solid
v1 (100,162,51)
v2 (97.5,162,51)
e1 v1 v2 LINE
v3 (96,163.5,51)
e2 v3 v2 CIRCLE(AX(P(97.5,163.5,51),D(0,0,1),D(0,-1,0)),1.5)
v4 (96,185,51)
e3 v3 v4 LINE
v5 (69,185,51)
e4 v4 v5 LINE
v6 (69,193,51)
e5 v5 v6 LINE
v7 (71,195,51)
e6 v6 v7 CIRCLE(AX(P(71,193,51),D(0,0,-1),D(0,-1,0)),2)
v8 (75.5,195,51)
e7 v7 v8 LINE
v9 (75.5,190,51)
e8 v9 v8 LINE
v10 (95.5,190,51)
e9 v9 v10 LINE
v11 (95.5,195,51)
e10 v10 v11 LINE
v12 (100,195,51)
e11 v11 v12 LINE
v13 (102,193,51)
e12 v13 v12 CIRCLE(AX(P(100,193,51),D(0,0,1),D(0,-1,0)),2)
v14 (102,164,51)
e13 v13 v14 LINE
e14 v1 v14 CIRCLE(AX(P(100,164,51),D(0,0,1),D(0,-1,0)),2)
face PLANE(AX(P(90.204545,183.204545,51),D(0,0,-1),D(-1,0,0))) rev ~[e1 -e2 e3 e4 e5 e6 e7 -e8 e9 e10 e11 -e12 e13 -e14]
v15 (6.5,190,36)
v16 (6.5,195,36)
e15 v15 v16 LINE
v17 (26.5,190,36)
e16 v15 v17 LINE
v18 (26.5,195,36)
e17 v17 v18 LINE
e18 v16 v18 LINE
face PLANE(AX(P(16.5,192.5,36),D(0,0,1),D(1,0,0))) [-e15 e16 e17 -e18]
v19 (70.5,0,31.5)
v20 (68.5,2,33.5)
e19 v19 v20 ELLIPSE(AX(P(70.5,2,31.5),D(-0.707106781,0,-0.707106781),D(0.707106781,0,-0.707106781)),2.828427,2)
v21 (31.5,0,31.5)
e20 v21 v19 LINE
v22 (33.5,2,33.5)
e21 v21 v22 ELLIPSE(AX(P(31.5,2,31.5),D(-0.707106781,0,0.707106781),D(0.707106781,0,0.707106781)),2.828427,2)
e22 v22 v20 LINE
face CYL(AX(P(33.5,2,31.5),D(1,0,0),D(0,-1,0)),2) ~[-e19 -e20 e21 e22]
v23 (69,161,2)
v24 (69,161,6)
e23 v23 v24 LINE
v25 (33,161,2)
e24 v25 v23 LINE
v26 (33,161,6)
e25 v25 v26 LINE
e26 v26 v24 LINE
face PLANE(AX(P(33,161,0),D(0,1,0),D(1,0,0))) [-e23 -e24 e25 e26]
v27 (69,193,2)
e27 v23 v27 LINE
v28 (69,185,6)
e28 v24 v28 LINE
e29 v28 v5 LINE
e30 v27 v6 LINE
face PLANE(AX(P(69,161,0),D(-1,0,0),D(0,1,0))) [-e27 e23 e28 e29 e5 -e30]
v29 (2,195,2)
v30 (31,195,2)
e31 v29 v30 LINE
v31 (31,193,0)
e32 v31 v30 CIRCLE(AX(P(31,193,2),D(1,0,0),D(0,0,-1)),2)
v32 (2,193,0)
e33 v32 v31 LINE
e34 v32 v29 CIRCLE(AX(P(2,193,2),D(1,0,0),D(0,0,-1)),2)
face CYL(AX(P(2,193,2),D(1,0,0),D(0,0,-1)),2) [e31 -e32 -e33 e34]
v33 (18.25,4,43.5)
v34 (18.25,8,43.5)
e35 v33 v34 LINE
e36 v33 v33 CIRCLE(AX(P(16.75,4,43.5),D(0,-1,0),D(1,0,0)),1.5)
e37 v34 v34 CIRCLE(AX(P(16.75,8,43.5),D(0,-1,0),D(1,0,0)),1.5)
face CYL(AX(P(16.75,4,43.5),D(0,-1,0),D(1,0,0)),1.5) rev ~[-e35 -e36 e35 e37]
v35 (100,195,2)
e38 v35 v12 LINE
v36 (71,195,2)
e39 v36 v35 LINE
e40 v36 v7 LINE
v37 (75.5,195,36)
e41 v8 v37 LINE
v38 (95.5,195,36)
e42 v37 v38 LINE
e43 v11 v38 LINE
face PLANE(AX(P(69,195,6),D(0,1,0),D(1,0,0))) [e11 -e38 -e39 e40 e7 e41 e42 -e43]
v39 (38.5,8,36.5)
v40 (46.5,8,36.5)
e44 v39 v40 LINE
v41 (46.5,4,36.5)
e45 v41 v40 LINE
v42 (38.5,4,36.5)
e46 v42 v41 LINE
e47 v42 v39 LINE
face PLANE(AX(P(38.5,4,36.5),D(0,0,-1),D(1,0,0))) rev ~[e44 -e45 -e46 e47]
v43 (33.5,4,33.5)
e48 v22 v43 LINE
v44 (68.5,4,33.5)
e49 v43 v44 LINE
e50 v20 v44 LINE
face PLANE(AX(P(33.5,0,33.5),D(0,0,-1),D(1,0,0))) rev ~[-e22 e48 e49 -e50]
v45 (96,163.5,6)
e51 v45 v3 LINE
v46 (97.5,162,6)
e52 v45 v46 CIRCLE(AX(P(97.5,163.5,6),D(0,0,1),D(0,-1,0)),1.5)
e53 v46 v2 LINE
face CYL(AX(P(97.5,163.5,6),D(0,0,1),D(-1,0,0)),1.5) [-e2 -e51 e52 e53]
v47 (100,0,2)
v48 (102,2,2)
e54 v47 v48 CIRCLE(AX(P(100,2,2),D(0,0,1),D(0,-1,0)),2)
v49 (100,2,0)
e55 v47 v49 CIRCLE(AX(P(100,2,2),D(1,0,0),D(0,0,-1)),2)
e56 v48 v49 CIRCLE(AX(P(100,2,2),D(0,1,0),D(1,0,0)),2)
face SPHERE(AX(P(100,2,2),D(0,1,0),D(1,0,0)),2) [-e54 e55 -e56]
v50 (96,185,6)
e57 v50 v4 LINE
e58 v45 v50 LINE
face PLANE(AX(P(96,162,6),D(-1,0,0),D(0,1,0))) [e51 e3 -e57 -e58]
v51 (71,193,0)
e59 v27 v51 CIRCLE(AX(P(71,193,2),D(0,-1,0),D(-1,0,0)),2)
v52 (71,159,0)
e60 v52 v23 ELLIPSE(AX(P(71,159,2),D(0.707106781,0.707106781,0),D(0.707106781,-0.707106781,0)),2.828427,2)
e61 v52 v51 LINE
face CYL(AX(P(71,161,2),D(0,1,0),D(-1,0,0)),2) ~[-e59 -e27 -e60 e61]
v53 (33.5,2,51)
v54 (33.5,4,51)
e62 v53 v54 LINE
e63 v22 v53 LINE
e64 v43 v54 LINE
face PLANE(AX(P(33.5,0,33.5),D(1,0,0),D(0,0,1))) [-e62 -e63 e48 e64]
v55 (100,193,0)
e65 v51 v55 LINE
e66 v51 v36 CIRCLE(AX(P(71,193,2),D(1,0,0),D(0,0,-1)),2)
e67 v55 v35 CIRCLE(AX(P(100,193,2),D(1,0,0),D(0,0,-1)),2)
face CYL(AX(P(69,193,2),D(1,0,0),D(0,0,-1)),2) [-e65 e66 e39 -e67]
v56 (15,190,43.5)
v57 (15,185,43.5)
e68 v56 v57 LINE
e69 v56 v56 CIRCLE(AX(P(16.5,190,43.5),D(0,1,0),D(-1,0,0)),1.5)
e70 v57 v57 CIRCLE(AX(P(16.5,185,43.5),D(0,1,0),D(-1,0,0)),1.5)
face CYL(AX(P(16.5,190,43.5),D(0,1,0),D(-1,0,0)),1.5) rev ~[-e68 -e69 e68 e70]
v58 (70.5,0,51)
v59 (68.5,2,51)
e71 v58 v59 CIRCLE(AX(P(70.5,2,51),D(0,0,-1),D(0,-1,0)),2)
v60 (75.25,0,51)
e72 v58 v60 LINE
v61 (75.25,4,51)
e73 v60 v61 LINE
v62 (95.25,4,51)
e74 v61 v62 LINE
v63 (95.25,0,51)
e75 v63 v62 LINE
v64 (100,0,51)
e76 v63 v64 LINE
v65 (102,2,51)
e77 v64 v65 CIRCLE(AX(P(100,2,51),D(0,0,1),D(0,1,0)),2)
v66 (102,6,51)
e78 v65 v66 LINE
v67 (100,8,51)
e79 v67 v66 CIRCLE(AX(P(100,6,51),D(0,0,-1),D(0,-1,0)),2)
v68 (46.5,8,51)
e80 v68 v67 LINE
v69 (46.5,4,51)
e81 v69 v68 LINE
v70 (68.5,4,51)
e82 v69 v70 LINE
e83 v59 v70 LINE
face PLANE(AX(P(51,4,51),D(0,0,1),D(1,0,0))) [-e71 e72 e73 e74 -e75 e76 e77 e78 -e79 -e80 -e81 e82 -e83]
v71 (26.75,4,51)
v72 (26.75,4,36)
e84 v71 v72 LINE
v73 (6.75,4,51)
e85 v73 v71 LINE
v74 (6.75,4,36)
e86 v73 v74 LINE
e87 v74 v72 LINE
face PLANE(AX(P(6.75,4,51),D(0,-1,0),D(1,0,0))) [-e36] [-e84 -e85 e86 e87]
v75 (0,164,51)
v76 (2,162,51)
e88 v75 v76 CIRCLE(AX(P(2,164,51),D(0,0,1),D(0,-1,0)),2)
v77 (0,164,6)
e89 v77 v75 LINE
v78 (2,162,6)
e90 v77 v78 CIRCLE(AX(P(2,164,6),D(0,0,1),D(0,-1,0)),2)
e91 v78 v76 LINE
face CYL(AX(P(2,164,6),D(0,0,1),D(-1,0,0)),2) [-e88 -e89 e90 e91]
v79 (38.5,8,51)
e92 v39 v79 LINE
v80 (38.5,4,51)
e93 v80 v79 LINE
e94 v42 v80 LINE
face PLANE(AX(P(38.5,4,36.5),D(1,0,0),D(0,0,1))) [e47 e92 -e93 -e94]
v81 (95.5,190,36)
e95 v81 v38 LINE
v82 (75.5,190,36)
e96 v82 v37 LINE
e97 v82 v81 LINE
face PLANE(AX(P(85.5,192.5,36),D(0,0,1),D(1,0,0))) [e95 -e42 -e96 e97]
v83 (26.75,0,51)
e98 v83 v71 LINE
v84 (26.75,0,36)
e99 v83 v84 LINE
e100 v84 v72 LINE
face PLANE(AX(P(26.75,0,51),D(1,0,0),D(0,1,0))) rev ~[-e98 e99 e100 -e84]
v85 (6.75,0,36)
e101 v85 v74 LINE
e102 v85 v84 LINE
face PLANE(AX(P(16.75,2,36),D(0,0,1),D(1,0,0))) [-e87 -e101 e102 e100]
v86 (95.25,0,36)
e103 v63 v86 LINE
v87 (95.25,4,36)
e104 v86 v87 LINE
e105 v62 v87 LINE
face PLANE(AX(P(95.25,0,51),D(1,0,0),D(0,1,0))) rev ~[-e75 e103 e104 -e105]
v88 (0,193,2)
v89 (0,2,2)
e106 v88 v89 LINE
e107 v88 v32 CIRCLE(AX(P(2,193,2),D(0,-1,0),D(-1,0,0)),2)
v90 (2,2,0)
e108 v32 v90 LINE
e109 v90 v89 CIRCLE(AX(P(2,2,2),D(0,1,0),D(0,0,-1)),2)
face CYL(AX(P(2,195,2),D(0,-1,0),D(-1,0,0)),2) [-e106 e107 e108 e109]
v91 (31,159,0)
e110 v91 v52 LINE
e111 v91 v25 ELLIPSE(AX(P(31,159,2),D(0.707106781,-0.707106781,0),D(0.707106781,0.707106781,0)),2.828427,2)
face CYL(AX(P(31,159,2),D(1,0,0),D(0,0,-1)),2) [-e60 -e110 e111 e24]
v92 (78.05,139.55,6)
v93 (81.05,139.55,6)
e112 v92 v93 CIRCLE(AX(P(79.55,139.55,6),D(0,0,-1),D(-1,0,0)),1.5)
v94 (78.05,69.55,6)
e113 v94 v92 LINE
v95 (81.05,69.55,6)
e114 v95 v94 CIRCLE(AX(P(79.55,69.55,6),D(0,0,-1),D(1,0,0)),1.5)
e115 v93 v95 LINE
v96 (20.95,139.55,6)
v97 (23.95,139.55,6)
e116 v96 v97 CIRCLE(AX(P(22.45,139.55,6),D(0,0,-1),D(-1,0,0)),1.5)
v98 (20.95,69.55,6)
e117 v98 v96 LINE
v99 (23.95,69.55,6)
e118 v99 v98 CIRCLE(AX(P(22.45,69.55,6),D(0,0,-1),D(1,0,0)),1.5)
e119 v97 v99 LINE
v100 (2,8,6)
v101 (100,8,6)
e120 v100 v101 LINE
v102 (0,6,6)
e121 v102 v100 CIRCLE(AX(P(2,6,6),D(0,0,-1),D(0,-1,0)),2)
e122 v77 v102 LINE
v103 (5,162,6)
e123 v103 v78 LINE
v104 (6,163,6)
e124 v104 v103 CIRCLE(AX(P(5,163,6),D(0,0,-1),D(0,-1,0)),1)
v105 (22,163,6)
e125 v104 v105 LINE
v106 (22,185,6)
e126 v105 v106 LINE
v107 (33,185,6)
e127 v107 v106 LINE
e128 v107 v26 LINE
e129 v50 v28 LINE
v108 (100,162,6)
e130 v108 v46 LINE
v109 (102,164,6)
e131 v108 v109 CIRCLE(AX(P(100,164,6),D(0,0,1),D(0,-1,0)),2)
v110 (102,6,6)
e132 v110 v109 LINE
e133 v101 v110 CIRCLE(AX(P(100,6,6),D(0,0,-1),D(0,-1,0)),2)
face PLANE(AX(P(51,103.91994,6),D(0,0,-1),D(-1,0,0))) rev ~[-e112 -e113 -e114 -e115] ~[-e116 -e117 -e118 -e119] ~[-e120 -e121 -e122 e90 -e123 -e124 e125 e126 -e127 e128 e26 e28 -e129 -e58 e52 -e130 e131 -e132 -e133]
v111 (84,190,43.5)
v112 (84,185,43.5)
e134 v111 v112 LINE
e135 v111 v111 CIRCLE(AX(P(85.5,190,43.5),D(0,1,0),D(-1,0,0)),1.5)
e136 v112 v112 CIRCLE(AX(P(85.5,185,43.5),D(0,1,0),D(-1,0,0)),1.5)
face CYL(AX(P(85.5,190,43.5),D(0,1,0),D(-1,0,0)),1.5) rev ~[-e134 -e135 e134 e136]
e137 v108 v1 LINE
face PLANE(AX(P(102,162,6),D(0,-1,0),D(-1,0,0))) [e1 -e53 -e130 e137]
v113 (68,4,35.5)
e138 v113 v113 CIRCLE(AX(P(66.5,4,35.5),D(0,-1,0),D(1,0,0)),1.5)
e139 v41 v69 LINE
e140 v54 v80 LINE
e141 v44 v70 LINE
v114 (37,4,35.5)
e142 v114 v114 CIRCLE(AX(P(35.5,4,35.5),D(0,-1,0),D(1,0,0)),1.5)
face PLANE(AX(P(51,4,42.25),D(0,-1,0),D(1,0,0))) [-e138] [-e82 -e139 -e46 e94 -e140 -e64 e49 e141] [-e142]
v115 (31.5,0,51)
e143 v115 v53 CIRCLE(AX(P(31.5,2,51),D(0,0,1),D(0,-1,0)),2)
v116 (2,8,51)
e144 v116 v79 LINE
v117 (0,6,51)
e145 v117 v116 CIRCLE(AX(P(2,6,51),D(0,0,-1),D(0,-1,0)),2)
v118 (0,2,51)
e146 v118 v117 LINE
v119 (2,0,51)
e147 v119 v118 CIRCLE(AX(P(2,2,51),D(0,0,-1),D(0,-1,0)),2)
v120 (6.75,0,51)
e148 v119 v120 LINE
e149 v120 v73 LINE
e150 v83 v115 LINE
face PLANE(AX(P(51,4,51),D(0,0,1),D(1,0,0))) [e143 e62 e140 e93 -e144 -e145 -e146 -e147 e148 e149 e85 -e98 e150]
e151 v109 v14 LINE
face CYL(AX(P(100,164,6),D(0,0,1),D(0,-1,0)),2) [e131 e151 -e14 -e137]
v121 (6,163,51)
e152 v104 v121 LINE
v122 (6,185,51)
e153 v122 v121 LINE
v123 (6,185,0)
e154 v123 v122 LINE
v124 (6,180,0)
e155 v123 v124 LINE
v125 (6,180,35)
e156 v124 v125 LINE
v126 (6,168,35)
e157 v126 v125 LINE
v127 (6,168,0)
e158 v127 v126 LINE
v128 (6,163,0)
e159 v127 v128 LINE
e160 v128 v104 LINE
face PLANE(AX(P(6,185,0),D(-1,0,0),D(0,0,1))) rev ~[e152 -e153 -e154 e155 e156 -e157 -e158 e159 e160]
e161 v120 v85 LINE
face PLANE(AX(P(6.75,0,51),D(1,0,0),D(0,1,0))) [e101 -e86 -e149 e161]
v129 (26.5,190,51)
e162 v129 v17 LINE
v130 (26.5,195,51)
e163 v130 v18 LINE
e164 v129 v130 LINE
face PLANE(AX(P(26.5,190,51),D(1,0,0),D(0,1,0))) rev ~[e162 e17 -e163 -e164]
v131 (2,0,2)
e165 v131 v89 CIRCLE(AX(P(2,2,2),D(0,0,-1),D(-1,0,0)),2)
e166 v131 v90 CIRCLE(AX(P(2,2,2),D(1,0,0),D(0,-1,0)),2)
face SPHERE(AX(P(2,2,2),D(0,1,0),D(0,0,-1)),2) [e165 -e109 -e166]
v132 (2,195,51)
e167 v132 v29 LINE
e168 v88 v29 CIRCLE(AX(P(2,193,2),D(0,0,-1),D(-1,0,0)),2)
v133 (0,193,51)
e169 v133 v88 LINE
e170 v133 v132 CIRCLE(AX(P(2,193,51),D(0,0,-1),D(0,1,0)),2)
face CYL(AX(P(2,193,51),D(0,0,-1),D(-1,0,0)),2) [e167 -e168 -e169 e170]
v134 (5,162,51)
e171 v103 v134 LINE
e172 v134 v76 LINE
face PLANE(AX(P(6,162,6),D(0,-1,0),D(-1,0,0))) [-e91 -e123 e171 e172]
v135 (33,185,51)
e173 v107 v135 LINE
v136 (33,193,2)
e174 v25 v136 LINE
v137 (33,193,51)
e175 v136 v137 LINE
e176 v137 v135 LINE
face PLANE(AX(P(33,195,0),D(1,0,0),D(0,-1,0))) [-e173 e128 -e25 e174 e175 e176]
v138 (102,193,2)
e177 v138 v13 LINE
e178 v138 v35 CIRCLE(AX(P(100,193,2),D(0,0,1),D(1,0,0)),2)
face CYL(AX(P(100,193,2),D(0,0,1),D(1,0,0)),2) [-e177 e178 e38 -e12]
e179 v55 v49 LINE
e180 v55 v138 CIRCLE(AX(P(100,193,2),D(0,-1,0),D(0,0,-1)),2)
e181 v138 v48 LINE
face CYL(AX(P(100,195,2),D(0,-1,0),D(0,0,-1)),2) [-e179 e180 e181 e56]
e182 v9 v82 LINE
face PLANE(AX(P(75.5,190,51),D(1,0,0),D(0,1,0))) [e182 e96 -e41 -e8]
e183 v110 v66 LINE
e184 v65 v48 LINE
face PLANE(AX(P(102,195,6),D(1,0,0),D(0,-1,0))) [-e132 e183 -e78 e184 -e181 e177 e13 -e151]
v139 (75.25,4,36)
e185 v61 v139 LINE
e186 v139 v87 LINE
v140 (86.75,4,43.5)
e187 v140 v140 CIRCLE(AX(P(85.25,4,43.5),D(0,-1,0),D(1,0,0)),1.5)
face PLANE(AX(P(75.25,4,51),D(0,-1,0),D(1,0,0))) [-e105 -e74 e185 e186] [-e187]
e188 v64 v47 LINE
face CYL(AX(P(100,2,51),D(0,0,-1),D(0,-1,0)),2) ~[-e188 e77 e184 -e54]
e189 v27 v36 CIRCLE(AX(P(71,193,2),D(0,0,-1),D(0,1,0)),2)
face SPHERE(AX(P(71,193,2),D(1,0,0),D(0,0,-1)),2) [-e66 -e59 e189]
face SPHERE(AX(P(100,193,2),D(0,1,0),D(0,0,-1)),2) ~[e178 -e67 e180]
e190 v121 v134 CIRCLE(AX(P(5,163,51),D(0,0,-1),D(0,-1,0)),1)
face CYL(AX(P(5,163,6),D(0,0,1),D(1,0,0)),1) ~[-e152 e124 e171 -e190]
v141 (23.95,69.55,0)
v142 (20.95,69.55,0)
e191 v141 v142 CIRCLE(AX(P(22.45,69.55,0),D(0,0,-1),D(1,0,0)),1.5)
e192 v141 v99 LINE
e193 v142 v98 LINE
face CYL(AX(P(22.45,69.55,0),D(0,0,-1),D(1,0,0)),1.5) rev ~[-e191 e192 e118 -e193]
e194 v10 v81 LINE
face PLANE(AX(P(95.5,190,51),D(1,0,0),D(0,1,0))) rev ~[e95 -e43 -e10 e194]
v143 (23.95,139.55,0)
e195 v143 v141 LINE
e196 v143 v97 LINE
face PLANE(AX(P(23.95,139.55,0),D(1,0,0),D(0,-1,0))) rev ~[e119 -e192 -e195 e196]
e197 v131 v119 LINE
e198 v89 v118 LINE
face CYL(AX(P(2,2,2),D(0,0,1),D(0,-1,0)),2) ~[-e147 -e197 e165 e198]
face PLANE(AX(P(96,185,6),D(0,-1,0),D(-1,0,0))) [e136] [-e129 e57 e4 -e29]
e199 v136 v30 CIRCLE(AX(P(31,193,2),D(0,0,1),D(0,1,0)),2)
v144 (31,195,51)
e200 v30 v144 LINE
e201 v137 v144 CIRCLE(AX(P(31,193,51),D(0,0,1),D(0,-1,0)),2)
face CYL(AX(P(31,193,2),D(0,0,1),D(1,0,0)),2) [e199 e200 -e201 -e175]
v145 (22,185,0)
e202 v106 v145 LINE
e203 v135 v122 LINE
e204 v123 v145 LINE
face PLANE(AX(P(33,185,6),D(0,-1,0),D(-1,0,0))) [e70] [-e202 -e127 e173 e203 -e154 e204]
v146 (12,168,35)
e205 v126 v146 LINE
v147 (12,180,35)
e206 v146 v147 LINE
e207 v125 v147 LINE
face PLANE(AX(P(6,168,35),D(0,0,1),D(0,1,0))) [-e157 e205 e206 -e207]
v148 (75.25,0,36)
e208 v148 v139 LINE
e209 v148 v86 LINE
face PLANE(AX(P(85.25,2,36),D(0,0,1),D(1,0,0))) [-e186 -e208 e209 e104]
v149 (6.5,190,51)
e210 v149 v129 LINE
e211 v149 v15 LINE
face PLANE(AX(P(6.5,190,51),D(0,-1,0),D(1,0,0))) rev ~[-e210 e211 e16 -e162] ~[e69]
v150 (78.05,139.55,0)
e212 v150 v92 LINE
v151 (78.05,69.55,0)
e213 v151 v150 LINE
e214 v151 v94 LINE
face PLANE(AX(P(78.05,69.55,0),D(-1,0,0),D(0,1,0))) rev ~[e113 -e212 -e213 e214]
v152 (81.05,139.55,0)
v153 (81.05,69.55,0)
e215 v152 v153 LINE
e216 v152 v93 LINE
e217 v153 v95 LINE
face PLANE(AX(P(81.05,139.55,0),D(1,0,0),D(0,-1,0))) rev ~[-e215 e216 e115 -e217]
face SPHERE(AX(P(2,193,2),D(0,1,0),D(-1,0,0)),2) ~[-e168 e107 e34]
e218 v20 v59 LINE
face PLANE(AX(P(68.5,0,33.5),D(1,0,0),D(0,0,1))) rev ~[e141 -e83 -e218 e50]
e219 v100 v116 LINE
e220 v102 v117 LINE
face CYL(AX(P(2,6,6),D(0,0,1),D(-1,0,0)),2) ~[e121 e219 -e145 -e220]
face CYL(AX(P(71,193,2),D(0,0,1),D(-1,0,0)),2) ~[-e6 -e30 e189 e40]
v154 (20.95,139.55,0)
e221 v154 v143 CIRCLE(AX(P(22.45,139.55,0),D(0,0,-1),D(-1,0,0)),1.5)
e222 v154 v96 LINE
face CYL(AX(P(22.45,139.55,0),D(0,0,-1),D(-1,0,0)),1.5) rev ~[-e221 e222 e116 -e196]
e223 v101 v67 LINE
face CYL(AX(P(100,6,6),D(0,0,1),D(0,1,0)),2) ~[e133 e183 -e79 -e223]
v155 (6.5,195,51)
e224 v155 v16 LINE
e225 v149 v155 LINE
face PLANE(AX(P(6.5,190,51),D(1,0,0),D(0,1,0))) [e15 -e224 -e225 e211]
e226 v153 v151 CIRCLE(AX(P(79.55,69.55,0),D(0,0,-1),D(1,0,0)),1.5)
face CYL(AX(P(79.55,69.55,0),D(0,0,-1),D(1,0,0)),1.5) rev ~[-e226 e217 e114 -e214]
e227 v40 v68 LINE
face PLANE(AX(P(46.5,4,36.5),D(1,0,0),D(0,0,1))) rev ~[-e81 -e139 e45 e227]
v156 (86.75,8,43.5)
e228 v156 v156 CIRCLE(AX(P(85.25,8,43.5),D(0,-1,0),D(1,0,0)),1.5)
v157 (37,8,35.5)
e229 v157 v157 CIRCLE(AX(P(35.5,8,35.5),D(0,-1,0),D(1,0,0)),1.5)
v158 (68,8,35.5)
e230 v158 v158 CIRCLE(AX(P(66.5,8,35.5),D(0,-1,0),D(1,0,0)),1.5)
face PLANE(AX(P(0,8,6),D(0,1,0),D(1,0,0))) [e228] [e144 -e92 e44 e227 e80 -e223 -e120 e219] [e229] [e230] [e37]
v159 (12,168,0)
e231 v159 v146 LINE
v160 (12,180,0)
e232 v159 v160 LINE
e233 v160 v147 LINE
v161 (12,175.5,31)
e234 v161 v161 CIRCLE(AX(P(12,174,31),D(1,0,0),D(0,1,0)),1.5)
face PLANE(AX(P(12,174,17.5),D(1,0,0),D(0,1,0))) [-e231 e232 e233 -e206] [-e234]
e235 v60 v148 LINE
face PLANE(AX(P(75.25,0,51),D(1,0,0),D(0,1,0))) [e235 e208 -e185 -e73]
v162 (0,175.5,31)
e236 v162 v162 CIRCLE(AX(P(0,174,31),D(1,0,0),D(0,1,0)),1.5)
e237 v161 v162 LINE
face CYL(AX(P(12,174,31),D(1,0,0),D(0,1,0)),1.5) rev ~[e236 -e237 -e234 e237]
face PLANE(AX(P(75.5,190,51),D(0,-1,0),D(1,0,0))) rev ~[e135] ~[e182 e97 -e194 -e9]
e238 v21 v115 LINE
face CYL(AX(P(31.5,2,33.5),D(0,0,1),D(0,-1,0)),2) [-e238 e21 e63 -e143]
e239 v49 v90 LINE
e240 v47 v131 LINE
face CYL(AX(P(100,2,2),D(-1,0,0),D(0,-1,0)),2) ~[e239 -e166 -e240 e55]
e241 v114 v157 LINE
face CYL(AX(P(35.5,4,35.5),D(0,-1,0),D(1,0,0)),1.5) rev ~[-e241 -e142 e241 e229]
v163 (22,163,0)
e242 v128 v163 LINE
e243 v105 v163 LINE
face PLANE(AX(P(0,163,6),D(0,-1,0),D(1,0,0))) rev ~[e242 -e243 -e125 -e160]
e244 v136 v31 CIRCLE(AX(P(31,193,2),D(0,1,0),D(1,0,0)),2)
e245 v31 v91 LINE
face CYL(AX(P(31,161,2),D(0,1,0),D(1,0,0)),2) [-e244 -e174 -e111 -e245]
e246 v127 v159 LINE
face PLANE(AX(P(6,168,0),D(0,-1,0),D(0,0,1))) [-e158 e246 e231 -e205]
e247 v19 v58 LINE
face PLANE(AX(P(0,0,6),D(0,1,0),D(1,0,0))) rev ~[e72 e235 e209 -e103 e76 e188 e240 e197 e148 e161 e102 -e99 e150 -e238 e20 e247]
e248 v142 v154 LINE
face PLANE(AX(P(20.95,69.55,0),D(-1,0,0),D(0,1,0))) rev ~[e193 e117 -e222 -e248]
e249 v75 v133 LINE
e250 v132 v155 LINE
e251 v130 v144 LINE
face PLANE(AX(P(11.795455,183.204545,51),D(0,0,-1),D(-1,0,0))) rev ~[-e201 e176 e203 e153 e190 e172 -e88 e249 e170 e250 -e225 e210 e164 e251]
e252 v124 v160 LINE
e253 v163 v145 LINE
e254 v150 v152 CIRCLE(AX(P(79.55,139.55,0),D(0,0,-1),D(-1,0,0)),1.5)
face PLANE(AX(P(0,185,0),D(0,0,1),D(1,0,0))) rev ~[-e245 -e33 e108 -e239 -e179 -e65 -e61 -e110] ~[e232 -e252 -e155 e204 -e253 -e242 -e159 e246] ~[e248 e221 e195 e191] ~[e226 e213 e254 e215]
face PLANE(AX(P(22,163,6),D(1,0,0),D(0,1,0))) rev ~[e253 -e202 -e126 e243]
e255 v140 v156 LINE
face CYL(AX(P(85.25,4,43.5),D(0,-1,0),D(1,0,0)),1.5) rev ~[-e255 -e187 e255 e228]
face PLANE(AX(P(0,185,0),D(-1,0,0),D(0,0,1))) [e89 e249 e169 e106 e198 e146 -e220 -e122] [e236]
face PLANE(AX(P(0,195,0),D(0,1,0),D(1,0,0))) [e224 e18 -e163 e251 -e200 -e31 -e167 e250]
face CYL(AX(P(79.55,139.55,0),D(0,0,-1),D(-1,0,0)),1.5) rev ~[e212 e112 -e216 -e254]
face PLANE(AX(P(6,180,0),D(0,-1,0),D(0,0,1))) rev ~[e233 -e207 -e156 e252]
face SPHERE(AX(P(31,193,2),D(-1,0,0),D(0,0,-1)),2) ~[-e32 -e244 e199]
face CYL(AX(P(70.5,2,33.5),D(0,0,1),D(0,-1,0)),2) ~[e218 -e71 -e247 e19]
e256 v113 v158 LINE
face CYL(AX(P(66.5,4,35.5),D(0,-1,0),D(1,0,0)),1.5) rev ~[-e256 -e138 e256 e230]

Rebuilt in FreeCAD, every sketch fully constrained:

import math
import FreeCAD as App
import Part
import Sketcher

V = App.Vector


def edges_at(feature, points):
    """Names of the edges that pass closest to the given points."""
    edges = feature.Shape.Edges
    near = lambda p: min(range(len(edges)), key=lambda i: edges[i].distToShape(Part.Vertex(*p))[0])
    return sorted({f"Edge{near(p) + 1}" for p in points})

doc = App.newDocument("Part")
body = doc.addObject("PartDesign::Body", "Body")

sketch1 = doc.addObject("Sketcher::SketchObject", "Sketch")
body.addObject(sketch1)
sketch1.AttachmentSupport = (doc.XY_Plane, [""])
sketch1.MapMode = "FlatFace"
sketch1.addGeometry([
    Part.LineSegment(V(0, 195, 0), V(0, 0, 0)),
    Part.LineSegment(V(0, 0, 0), V(102, 0, 0)),
    Part.LineSegment(V(102, 0, 0), V(102, 195, 0)),
    Part.LineSegment(V(102, 195, 0), V(69, 195, 0)),
    Part.LineSegment(V(69, 195, 0), V(69, 161, 0)),
    Part.LineSegment(V(69, 161, 0), V(33, 161, 0)),
    Part.LineSegment(V(33, 161, 0), V(33, 195, 0)),
    Part.LineSegment(V(33, 195, 0), V(0, 195, 0)),
], False)
sketch1.addConstraint([
    Sketcher.Constraint("Coincident", 0, 2, 1, 1),
    Sketcher.Constraint("Coincident", 1, 2, 2, 1),
    Sketcher.Constraint("Coincident", 2, 2, 3, 1),
    Sketcher.Constraint("Coincident", 3, 2, 4, 1),
    Sketcher.Constraint("Coincident", 4, 2, 5, 1),
    Sketcher.Constraint("Coincident", 5, 2, 6, 1),
    Sketcher.Constraint("Coincident", 6, 2, 7, 1),
    Sketcher.Constraint("Coincident", 7, 2, 0, 1),
    Sketcher.Constraint("Vertical", 0),
    Sketcher.Constraint("Horizontal", 1),
    Sketcher.Constraint("Vertical", 2),
    Sketcher.Constraint("Horizontal", 3),
    Sketcher.Constraint("Vertical", 4),
    Sketcher.Constraint("Horizontal", 5),
    Sketcher.Constraint("Vertical", 6),
    Sketcher.Constraint("Horizontal", 7),
    Sketcher.Constraint("Coincident", 0, 2, -1, 1),
    Sketcher.Constraint("Horizontal", 3, 2, 6, 2),
    Sketcher.Constraint("Equal", 3, 7),
    Sketcher.Constraint("DistanceX", 1, 1, 1, 2, 102.0),
    Sketcher.Constraint("DistanceX", 3, 2, 3, 1, 33.0),
    Sketcher.Constraint("DistanceY", 0, 2, 0, 1, 195.0),
    Sketcher.Constraint("DistanceY", 4, 2, 4, 1, 34.0),
])
pad1 = doc.addObject("PartDesign::Pad", "Pad")
body.addObject(pad1)
pad1.Profile = sketch1
pad1.Length = 6

sketch2 = doc.addObject("Sketcher::SketchObject", "Sketch001")
body.addObject(sketch2)
sketch2.AttachmentSupport = (doc.XY_Plane, [""])
sketch2.MapMode = "FlatFace"
sketch2.AttachmentOffset = App.Placement(V(0, 0, 6), App.Rotation())
sketch2.addGeometry([
    Part.LineSegment(V(0, 185, 0), V(0, 163, 0)),
    Part.LineSegment(V(0, 163, 0), V(22, 163, 0)),
    Part.LineSegment(V(22, 163, 0), V(22, 185, 0)),
    Part.LineSegment(V(22, 185, 0), V(0, 185, 0)),
], False)
sketch2.addConstraint([
    Sketcher.Constraint("Coincident", 0, 2, 1, 1),
    Sketcher.Constraint("Coincident", 1, 2, 2, 1),
    Sketcher.Constraint("Coincident", 2, 2, 3, 1),
    Sketcher.Constraint("Coincident", 3, 2, 0, 1),
    Sketcher.Constraint("Vertical", 0),
    Sketcher.Constraint("Horizontal", 1),
    Sketcher.Constraint("Vertical", 2),
    Sketcher.Constraint("Horizontal", 3),
    Sketcher.Constraint("PointOnObject", 0, 2, -2),
    Sketcher.Constraint("Equal", 3, 0),
    Sketcher.Constraint("DistanceX", 1, 1, 1, 2, 22.0),
    Sketcher.Constraint("DistanceY", -1, 1, 0, 2, 163.0),
])
pocket1 = doc.addObject("PartDesign::Pocket", "Pocket")
body.addObject(pocket1)
pocket1.Profile = sketch2
pocket1.Length = 6

sketch3 = doc.addObject("Sketcher::SketchObject", "Sketch002")
body.addObject(sketch3)
sketch3.AttachmentSupport = (doc.XY_Plane, [""])
sketch3.MapMode = "FlatFace"
sketch3.AttachmentOffset = App.Placement(V(0, 0, 6), App.Rotation())
sketch3.addGeometry([
    Part.LineSegment(V(0, 8, 0), V(0, 0, 0)),
    Part.LineSegment(V(0, 0, 0), V(102, 0, 0)),
    Part.LineSegment(V(102, 0, 0), V(102, 8, 0)),
    Part.LineSegment(V(102, 8, 0), V(0, 8, 0)),
], False)
sketch3.addConstraint([
    Sketcher.Constraint("Coincident", 0, 2, 1, 1),
    Sketcher.Constraint("Coincident", 1, 2, 2, 1),
    Sketcher.Constraint("Coincident", 2, 2, 3, 1),
    Sketcher.Constraint("Coincident", 3, 2, 0, 1),
    Sketcher.Constraint("Vertical", 0),
    Sketcher.Constraint("Horizontal", 1),
    Sketcher.Constraint("Vertical", 2),
    Sketcher.Constraint("Horizontal", 3),
    Sketcher.Constraint("Coincident", 0, 2, -1, 1),
    Sketcher.Constraint("DistanceX", 1, 1, 1, 2, 102.0),
    Sketcher.Constraint("DistanceY", 0, 2, 0, 1, 8.0),
])
pad2 = doc.addObject("PartDesign::Pad", "Pad001")
body.addObject(pad2)
pad2.Profile = sketch3
pad2.Length = 45

sketch4 = doc.addObject("Sketcher::SketchObject", "Sketch003")
body.addObject(sketch4)
sketch4.AttachmentSupport = (doc.XZ_Plane, [""])
sketch4.MapMode = "FlatFace"
sketch4.addGeometry([
    Part.LineSegment(V(34, 51, 0), V(34, 34, 0)),
    Part.LineSegment(V(34, 34, 0), V(68, 34, 0)),
    Part.LineSegment(V(68, 34, 0), V(68, 51, 0)),
    Part.LineSegment(V(68, 51, 0), V(34, 51, 0)),
], False)
sketch4.addConstraint([
    Sketcher.Constraint("Coincident", 0, 2, 1, 1),
    Sketcher.Constraint("Coincident", 1, 2, 2, 1),
    Sketcher.Constraint("Coincident", 2, 2, 3, 1),
    Sketcher.Constraint("Coincident", 3, 2, 0, 1),
    Sketcher.Constraint("Vertical", 0),
    Sketcher.Constraint("Horizontal", 1),
    Sketcher.Constraint("Vertical", 2),
    Sketcher.Constraint("Horizontal", 3),
    Sketcher.Constraint("DistanceX", 1, 1, 1, 2, 35.0),
    Sketcher.Constraint("DistanceY", 0, 2, 0, 1, 17.5),
    Sketcher.Constraint("DistanceY", -1, 1, 2, 2, 51.0),
    Sketcher.Constraint("DistanceX", -1, 1, 0, 2, 33.5),
])
pocket2 = doc.addObject("PartDesign::Pocket", "Pocket001")
body.addObject(pocket2)
pocket2.Profile = sketch4
pocket2.Length = 4

sketch5 = doc.addObject("Sketcher::SketchObject", "Sketch004")
body.addObject(sketch5)
sketch5.AttachmentSupport = (doc.XZ_Plane, [""])
sketch5.MapMode = "FlatFace"
sketch5.AttachmentOffset = App.Placement(V(0, 0, -4), App.Rotation())
sketch5.addGeometry([
    Part.Circle(V(35.5, 35.5, 0), V(0, 0, 1), 1.5),
    Part.Circle(V(66.5, 35.5, 0), V(0, 0, 1), 1.5),
    Part.LineSegment(V(38.5, 51, 0), V(38.5, 36.5, 0)),
    Part.LineSegment(V(38.5, 36.5, 0), V(46.5, 36.5, 0)),
    Part.LineSegment(V(46.5, 36.5, 0), V(46.5, 51, 0)),
    Part.LineSegment(V(46.5, 51, 0), V(38.5, 51, 0)),
], False)
sketch5.addConstraint([
    Sketcher.Constraint("Coincident", 2, 2, 3, 1),
    Sketcher.Constraint("Coincident", 3, 2, 4, 1),
    Sketcher.Constraint("Coincident", 4, 2, 5, 1),
    Sketcher.Constraint("Coincident", 5, 2, 2, 1),
    Sketcher.Constraint("Vertical", 2),
    Sketcher.Constraint("Horizontal", 3),
    Sketcher.Constraint("Vertical", 4),
    Sketcher.Constraint("Horizontal", 5),
    Sketcher.Constraint("Equal", 0, 1),
    Sketcher.Constraint("Horizontal", 0, 3, 1, 3),
    Sketcher.Constraint("Diameter", 0, 3.0),
    Sketcher.Constraint("DistanceX", 3, 1, 3, 2, 8.0),
    Sketcher.Constraint("DistanceY", 2, 2, 2, 1, 14.5),
    Sketcher.Constraint("DistanceY", -1, 1, 4, 2, 51.0),
    Sketcher.Constraint("DistanceX", 0, 3, 1, 3, 31.0),
    Sketcher.Constraint("DistanceX", 0, 3, 2, 2, 3.0),
    Sketcher.Constraint("DistanceY", 0, 3, 2, 2, 1.0),
    Sketcher.Constraint("DistanceX", -1, 1, 0, 3, 35.5),
])
pocket3 = doc.addObject("PartDesign::Pocket", "Pocket002")
body.addObject(pocket3)
pocket3.Profile = sketch5
pocket3.Length = 4

sketch6 = doc.addObject("Sketcher::SketchObject", "Sketch005")
body.addObject(sketch6)
sketch6.AttachmentSupport = (doc.XY_Plane, [""])
sketch6.MapMode = "FlatFace"
sketch6.AttachmentOffset = App.Placement(V(0, 0, 51), App.Rotation())
sketch6.addGeometry([
    Part.LineSegment(V(75.2, 4, 0), V(75.2, 0, 0)),
    Part.LineSegment(V(75.2, 0, 0), V(95.2, 0, 0)),
    Part.LineSegment(V(95.2, 0, 0), V(95.2, 4, 0)),
    Part.LineSegment(V(95.2, 4, 0), V(75.2, 4, 0)),
    Part.LineSegment(V(6.8, 4, 0), V(6.8, 0, 0)),
    Part.LineSegment(V(6.8, 0, 0), V(26.8, 0, 0)),
    Part.LineSegment(V(26.8, 0, 0), V(26.8, 4, 0)),
    Part.LineSegment(V(26.8, 4, 0), V(6.8, 4, 0)),
], False)
sketch6.addConstraint([
    Sketcher.Constraint("Coincident", 0, 2, 1, 1),
    Sketcher.Constraint("Coincident", 1, 2, 2, 1),
    Sketcher.Constraint("Coincident", 2, 2, 3, 1),
    Sketcher.Constraint("Coincident", 3, 2, 0, 1),
    Sketcher.Constraint("Coincident", 4, 2, 5, 1),
    Sketcher.Constraint("Coincident", 5, 2, 6, 1),
    Sketcher.Constraint("Coincident", 6, 2, 7, 1),
    Sketcher.Constraint("Coincident", 7, 2, 4, 1),
    Sketcher.Constraint("Vertical", 0),
    Sketcher.Constraint("Horizontal", 1),
    Sketcher.Constraint("Vertical", 2),
    Sketcher.Constraint("Horizontal", 3),
    Sketcher.Constraint("Vertical", 4),
    Sketcher.Constraint("Horizontal", 5),
    Sketcher.Constraint("Vertical", 6),
    Sketcher.Constraint("Horizontal", 7),
    Sketcher.Constraint("PointOnObject", 0, 2, -1),
    Sketcher.Constraint("PointOnObject", 4, 2, -1),
    Sketcher.Constraint("Horizontal", 3, 2, 6, 2),
    Sketcher.Constraint("Equal", 3, 5),
    Sketcher.Constraint("DistanceX", 1, 1, 1, 2, 20.0),
    Sketcher.Constraint("DistanceY", 0, 2, 0, 1, 4.0),
    Sketcher.Constraint("DistanceX", 4, 2, 0, 2, 68.5),
    Sketcher.Constraint("DistanceX", -1, 1, 0, 2, 75.25),
])
pocket4 = doc.addObject("PartDesign::Pocket", "Pocket003")
body.addObject(pocket4)
pocket4.Profile = sketch6
pocket4.Length = 15

sketch7 = doc.addObject("Sketcher::SketchObject", "Sketch006")
body.addObject(sketch7)
sketch7.AttachmentSupport = (doc.XZ_Plane, [""])
sketch7.MapMode = "FlatFace"
sketch7.AttachmentOffset = App.Placement(V(0, 0, -4), App.Rotation())
sketch7.addGeometry([
    Part.Circle(V(16.8, 43.5, 0), V(0, 0, 1), 1.5),
    Part.Circle(V(85.2, 43.5, 0), V(0, 0, 1), 1.5),
], False)
sketch7.addConstraint([
    Sketcher.Constraint("Equal", 0, 1),
    Sketcher.Constraint("Horizontal", 0, 3, 1, 3),
    Sketcher.Constraint("Diameter", 0, 3.0),
    Sketcher.Constraint("DistanceY", -1, 1, 0, 3, 43.5),
    Sketcher.Constraint("DistanceX", 0, 3, 1, 3, 68.5),
    Sketcher.Constraint("DistanceX", -1, 1, 0, 3, 16.75),
])
pocket5 = doc.addObject("PartDesign::Pocket", "Pocket004")
body.addObject(pocket5)
pocket5.Profile = sketch7
pocket5.Length = 4

sketch8 = doc.addObject("Sketcher::SketchObject", "Sketch007")
body.addObject(sketch8)
sketch8.AttachmentSupport = (doc.XY_Plane, [""])
sketch8.MapMode = "FlatFace"
sketch8.AttachmentOffset = App.Placement(V(0, 0, 6), App.Rotation())
sketch8.addGeometry([
    Part.LineSegment(V(96, 162, 0), V(102, 162, 0)),
    Part.LineSegment(V(102, 162, 0), V(102, 195, 0)),
    Part.LineSegment(V(102, 195, 0), V(69, 195, 0)),
    Part.LineSegment(V(69, 195, 0), V(69, 185, 0)),
    Part.LineSegment(V(69, 185, 0), V(96, 185, 0)),
    Part.LineSegment(V(96, 185, 0), V(96, 162, 0)),
    Part.LineSegment(V(0, 162, 0), V(6, 162, 0)),
    Part.LineSegment(V(6, 162, 0), V(6, 185, 0)),
    Part.LineSegment(V(6, 185, 0), V(33, 185, 0)),
    Part.LineSegment(V(33, 185, 0), V(33, 195, 0)),
    Part.LineSegment(V(33, 195, 0), V(0, 195, 0)),
    Part.LineSegment(V(0, 195, 0), V(0, 162, 0)),
], False)
sketch8.addConstraint([
    Sketcher.Constraint("Coincident", 0, 2, 1, 1),
    Sketcher.Constraint("Coincident", 1, 2, 2, 1),
    Sketcher.Constraint("Coincident", 2, 2, 3, 1),
    Sketcher.Constraint("Coincident", 3, 2, 4, 1),
    Sketcher.Constraint("Coincident", 4, 2, 5, 1),
    Sketcher.Constraint("Coincident", 5, 2, 0, 1),
    Sketcher.Constraint("Coincident", 6, 2, 7, 1),
    Sketcher.Constraint("Coincident", 7, 2, 8, 1),
    Sketcher.Constraint("Coincident", 8, 2, 9, 1),
    Sketcher.Constraint("Coincident", 9, 2, 10, 1),
    Sketcher.Constraint("Coincident", 10, 2, 11, 1),
    Sketcher.Constraint("Coincident", 11, 2, 6, 1),
    Sketcher.Constraint("Horizontal", 0),
    Sketcher.Constraint("Vertical", 1),
    Sketcher.Constraint("Horizontal", 2),
    Sketcher.Constraint("Vertical", 3),
    Sketcher.Constraint("Horizontal", 4),
    Sketcher.Constraint("Vertical", 5),
    Sketcher.Constraint("Horizontal", 6),
    Sketcher.Constraint("Vertical", 7),
    Sketcher.Constraint("Horizontal", 8),
    Sketcher.Constraint("Vertical", 9),
    Sketcher.Constraint("Horizontal", 10),
    Sketcher.Constraint("Vertical", 11),
    Sketcher.Constraint("PointOnObject", 10, 2, -2),
    Sketcher.Constraint("Horizontal", 5, 2, 6, 2),
    Sketcher.Constraint("Horizontal", 4, 2, 7, 2),
    Sketcher.Constraint("Horizontal", 2, 2, 9, 2),
    Sketcher.Constraint("Equal", 0, 6),
    Sketcher.Constraint("Equal", 4, 8),
    Sketcher.Constraint("Equal", 10, 1),
    Sketcher.Constraint("DistanceX", 0, 1, 0, 2, 6.0),
    Sketcher.Constraint("DistanceX", 2, 2, 2, 1, 33.0),
    Sketcher.Constraint("DistanceY", 3, 2, 3, 1, 10.0),
    Sketcher.Constraint("DistanceX", -1, 1, 0, 2, 102.0),
    Sketcher.Constraint("DistanceY", -1, 1, 0, 2, 162.0),
])
pad3 = doc.addObject("PartDesign::Pad", "Pad002")
body.addObject(pad3)
pad3.Profile = sketch8
pad3.Length = 45

sketch9 = doc.addObject("Sketcher::SketchObject", "Sketch008")
body.addObject(sketch9)
sketch9.AttachmentSupport = (doc.XZ_Plane, [""])
sketch9.MapMode = "FlatFace"
sketch9.AttachmentOffset = App.Placement(V(0, 0, -185), App.Rotation())
sketch9.addGeometry([
    Part.LineSegment(V(0, 6, 0), V(0, 0, 0)),
    Part.LineSegment(V(0, 0, 0), V(6, 0, 0)),
    Part.LineSegment(V(6, 0, 0), V(6, 6, 0)),
    Part.LineSegment(V(6, 6, 0), V(0, 6, 0)),
], False)
sketch9.addConstraint([
    Sketcher.Constraint("Coincident", 0, 2, 1, 1),
    Sketcher.Constraint("Coincident", 1, 2, 2, 1),
    Sketcher.Constraint("Coincident", 2, 2, 3, 1),
    Sketcher.Constraint("Coincident", 3, 2, 0, 1),
    Sketcher.Constraint("Vertical", 0),
    Sketcher.Constraint("Horizontal", 1),
    Sketcher.Constraint("Vertical", 2),
    Sketcher.Constraint("Horizontal", 3),
    Sketcher.Constraint("Coincident", 0, 2, -1, 1),
    Sketcher.Constraint("Equal", 3, 0),
    Sketcher.Constraint("DistanceX", 1, 1, 1, 2, 6.0),
])
pad4 = doc.addObject("PartDesign::Pad", "Pad003")
body.addObject(pad4)
pad4.Profile = sketch9
pad4.Length = 22

sketch10 = doc.addObject("Sketcher::SketchObject", "Sketch009")
body.addObject(sketch10)
sketch10.AttachmentSupport = (doc.XY_Plane, [""])
sketch10.MapMode = "FlatFace"
sketch10.AttachmentOffset = App.Placement(V(0, 0, 51), App.Rotation())
sketch10.addGeometry([
    Part.LineSegment(V(6, 195, 0), V(6, 190, 0)),
    Part.LineSegment(V(6, 190, 0), V(26, 190, 0)),
    Part.LineSegment(V(26, 190, 0), V(26, 195, 0)),
    Part.LineSegment(V(26, 195, 0), V(6, 195, 0)),
    Part.LineSegment(V(76, 195, 0), V(76, 190, 0)),
    Part.LineSegment(V(76, 190, 0), V(96, 190, 0)),
    Part.LineSegment(V(96, 190, 0), V(96, 195, 0)),
    Part.LineSegment(V(96, 195, 0), V(76, 195, 0)),
], False)
sketch10.addConstraint([
    Sketcher.Constraint("Coincident", 0, 2, 1, 1),
    Sketcher.Constraint("Coincident", 1, 2, 2, 1),
    Sketcher.Constraint("Coincident", 2, 2, 3, 1),
    Sketcher.Constraint("Coincident", 3, 2, 0, 1),
    Sketcher.Constraint("Coincident", 4, 2, 5, 1),
    Sketcher.Constraint("Coincident", 5, 2, 6, 1),
    Sketcher.Constraint("Coincident", 6, 2, 7, 1),
    Sketcher.Constraint("Coincident", 7, 2, 4, 1),
    Sketcher.Constraint("Vertical", 0),
    Sketcher.Constraint("Horizontal", 1),
    Sketcher.Constraint("Vertical", 2),
    Sketcher.Constraint("Horizontal", 3),
    Sketcher.Constraint("Vertical", 4),
    Sketcher.Constraint("Horizontal", 5),
    Sketcher.Constraint("Vertical", 6),
    Sketcher.Constraint("Horizontal", 7),
    Sketcher.Constraint("Horizontal", 1, 2, 4, 2),
    Sketcher.Constraint("Horizontal", 3, 2, 6, 2),
    Sketcher.Constraint("Equal", 3, 5),
    Sketcher.Constraint("DistanceX", 1, 1, 1, 2, 20.0),
    Sketcher.Constraint("DistanceY", 0, 2, 0, 1, 5.0),
    Sketcher.Constraint("DistanceY", -1, 1, 0, 2, 190.0),
    Sketcher.Constraint("DistanceX", 1, 2, 4, 2, 49.0),
    Sketcher.Constraint("DistanceX", -1, 1, 0, 2, 6.5),
])
pocket6 = doc.addObject("PartDesign::Pocket", "Pocket005")
body.addObject(pocket6)
pocket6.Profile = sketch10
pocket6.Length = 15

sketch11 = doc.addObject("Sketcher::SketchObject", "Sketch010")
body.addObject(sketch11)
sketch11.AttachmentSupport = (doc.XZ_Plane, [""])
sketch11.MapMode = "FlatFace"
sketch11.AttachmentOffset = App.Placement(V(0, 0, -190), App.Rotation())
sketch11.addGeometry([
    Part.Circle(V(85.5, 43.5, 0), V(0, 0, 1), 1.5),
    Part.Circle(V(16.5, 43.5, 0), V(0, 0, 1), 1.5),
], False)
sketch11.addConstraint([
    Sketcher.Constraint("Equal", 0, 1),
    Sketcher.Constraint("Horizontal", 0, 3, 1, 3),
    Sketcher.Constraint("Diameter", 0, 3.0),
    Sketcher.Constraint("DistanceX", 1, 3, 0, 3, 69.0),
    Sketcher.Constraint("DistanceX", -1, 1, 0, 3, 85.5),
    Sketcher.Constraint("DistanceY", -1, 1, 0, 3, 43.5),
])
pocket7 = doc.addObject("PartDesign::Pocket", "Pocket006")
body.addObject(pocket7)
pocket7.Profile = sketch11
pocket7.Length = 5
pocket7.Reversed = True

sketch12 = doc.addObject("Sketcher::SketchObject", "Sketch011")
body.addObject(sketch12)
sketch12.AttachmentSupport = (doc.YZ_Plane, [""])
sketch12.MapMode = "FlatFace"
sketch12.AttachmentOffset = App.Placement(V(0, 0, 6), App.Rotation())
sketch12.addGeometry([
    Part.LineSegment(V(168, 35, 0), V(168, 0, 0)),
    Part.LineSegment(V(168, 0, 0), V(180, 0, 0)),
    Part.LineSegment(V(180, 0, 0), V(180, 35, 0)),
    Part.LineSegment(V(180, 35, 0), V(168, 35, 0)),
], False)
sketch12.addConstraint([
    Sketcher.Constraint("Coincident", 0, 2, 1, 1),
    Sketcher.Constraint("Coincident", 1, 2, 2, 1),
    Sketcher.Constraint("Coincident", 2, 2, 3, 1),
    Sketcher.Constraint("Coincident", 3, 2, 0, 1),
    Sketcher.Constraint("Vertical", 0),
    Sketcher.Constraint("Horizontal", 1),
    Sketcher.Constraint("Vertical", 2),
    Sketcher.Constraint("Horizontal", 3),
    Sketcher.Constraint("PointOnObject", 0, 2, -1),
    Sketcher.Constraint("DistanceX", 1, 1, 1, 2, 12.0),
    Sketcher.Constraint("DistanceY", 0, 2, 0, 1, 35.0),
    Sketcher.Constraint("DistanceX", -1, 1, 0, 2, 168.0),
])
pad5 = doc.addObject("PartDesign::Pad", "Pad004")
body.addObject(pad5)
pad5.Profile = sketch12
pad5.Length = 6

sketch13 = doc.addObject("Sketcher::SketchObject", "Sketch012")
body.addObject(sketch13)
sketch13.AttachmentSupport = (doc.YZ_Plane, [""])
sketch13.MapMode = "FlatFace"
sketch13.AttachmentOffset = App.Placement(V(0, 0, 12), App.Rotation())
sketch13.addGeometry(Part.Circle(V(174, 31, 0), V(0, 0, 1), 1.5), False)
sketch13.addConstraint([
    Sketcher.Constraint("Diameter", 0, 3.0),
    Sketcher.Constraint("DistanceX", -1, 1, 0, 3, 174.0),
    Sketcher.Constraint("DistanceY", -1, 1, 0, 3, 31.0),
])
pocket8 = doc.addObject("PartDesign::Pocket", "Pocket007")
body.addObject(pocket8)
pocket8.Profile = sketch13
pocket8.Type = "ThroughAll"

sketch14 = doc.addObject("Sketcher::SketchObject", "Sketch013")
body.addObject(sketch14)
sketch14.AttachmentSupport = (doc.XY_Plane, [""])
sketch14.MapMode = "FlatFace"
sketch14.addGeometry([
    Part.ArcOfCircle(Part.Circle(V(22.4, 69.5, 0), V(0, 0, 1), 1.5), math.radians(180), math.radians(360)),
    Part.LineSegment(V(20.9, 69.5, 0), V(20.9, 139.6, 0)),
    Part.ArcOfCircle(Part.Circle(V(22.4, 139.6, 0), V(0, 0, 1), 1.5), math.radians(0), math.radians(180)),
    Part.LineSegment(V(23.9, 139.6, 0), V(23.9, 69.5, 0)),
    Part.ArcOfCircle(Part.Circle(V(79.5, 69.5, 0), V(0, 0, 1), 1.5), math.radians(180), math.radians(360)),
    Part.LineSegment(V(78, 69.5, 0), V(78, 139.6, 0)),
    Part.ArcOfCircle(Part.Circle(V(79.5, 139.6, 0), V(0, 0, 1), 1.5), math.radians(0), math.radians(180)),
    Part.LineSegment(V(81, 139.6, 0), V(81, 69.5, 0)),
], False)
sketch14.addConstraint([
    Sketcher.Constraint("Tangent", 0, 1, 1, 1),
    Sketcher.Constraint("Tangent", 1, 2, 2, 2),
    Sketcher.Constraint("Tangent", 2, 1, 3, 1),
    Sketcher.Constraint("Tangent", 3, 2, 0, 2),
    Sketcher.Constraint("Tangent", 4, 1, 5, 1),
    Sketcher.Constraint("Tangent", 5, 2, 6, 2),
    Sketcher.Constraint("Tangent", 6, 1, 7, 1),
    Sketcher.Constraint("Tangent", 7, 2, 4, 2),
    Sketcher.Constraint("Vertical", 1),
    Sketcher.Constraint("Vertical", 3),
    Sketcher.Constraint("Vertical", 5),
    Sketcher.Constraint("Vertical", 7),
    Sketcher.Constraint("Equal", 2, 4),
    Sketcher.Constraint("Horizontal", 0, 3, 4, 3),
    Sketcher.Constraint("Horizontal", 2, 3, 6, 3),
    Sketcher.Constraint("Radius", 0, 1.5),
    Sketcher.Constraint("DistanceY", 1, 1, 1, 2, 70.0),
    Sketcher.Constraint("DistanceX", 0, 3, 4, 3, 57.1),
    Sketcher.Constraint("DistanceX", -1, 1, 0, 3, 22.45),
    Sketcher.Constraint("DistanceY", -1, 1, 0, 3, 69.55),
])
pocket9 = doc.addObject("PartDesign::Pocket", "Pocket008")
body.addObject(pocket9)
pocket9.Profile = sketch14
pocket9.Length = 6
pocket9.Reversed = True
doc.recompute()

fillet = doc.addObject("PartDesign::Fillet", "Fillet")
body.addObject(fillet)
fillet.Base = (pocket9, edges_at(pocket9, [(0, 97.5, 0)]))
fillet.Radius = 2
doc.recompute()

fillet2 = doc.addObject("PartDesign::Fillet", "Fillet001")
body.addObject(fillet2)
fillet2.Base = (fillet, edges_at(fillet, [(102, 97.5, 0)]))
fillet2.Radius = 2
doc.recompute()

fillet3 = doc.addObject("PartDesign::Fillet", "Fillet002")
body.addObject(fillet3)
fillet3.Base = (fillet2, edges_at(fillet2, [(51, 0, 0)]))
fillet3.Radius = 2
doc.recompute()

fillet4 = doc.addObject("PartDesign::Fillet", "Fillet003")
body.addObject(fillet4)
fillet4.Base = (fillet3, edges_at(fillet3, [(51, 0, 33.5), (33.5, 0, 42.25), (68.5, 0, 42.25)]))
fillet4.Radius = 2
doc.recompute()

fillet5 = doc.addObject("PartDesign::Fillet", "Fillet004")
body.addObject(fillet5)
fillet5.Base = (fillet4, edges_at(fillet4, [(102, 8, 28.5)]))
fillet5.Radius = 2
doc.recompute()

fillet6 = doc.addObject("PartDesign::Fillet", "Fillet005")
body.addObject(fillet6)
fillet6.Base = (fillet5, edges_at(fillet5, [(0, 8, 28.5)]))
fillet6.Radius = 2
doc.recompute()

fillet7 = doc.addObject("PartDesign::Fillet", "Fillet006")
body.addObject(fillet7)
fillet7.Base = (fillet6, edges_at(fillet6, [(102, 162, 28.5)]))
fillet7.Radius = 2
doc.recompute()

fillet8 = doc.addObject("PartDesign::Fillet", "Fillet007")
body.addObject(fillet8)
fillet8.Base = (fillet7, edges_at(fillet7, [(96, 162, 28.5)]))
fillet8.Radius = 1.5
doc.recompute()

fillet9 = doc.addObject("PartDesign::Fillet", "Fillet008")
body.addObject(fillet9)
fillet9.Base = (fillet8, edges_at(fillet8, [(0, 162, 28.5)]))
fillet9.Radius = 2
doc.recompute()

fillet10 = doc.addObject("PartDesign::Fillet", "Fillet009")
body.addObject(fillet10)
fillet10.Base = (fillet9, edges_at(fillet9, [(6, 162, 28.5)]))
fillet10.Radius = 1
doc.recompute()

fillet11 = doc.addObject("PartDesign::Fillet", "Fillet010")
body.addObject(fillet11)
fillet11.Base = (fillet10, edges_at(fillet10, [(0, 195, 26.5)]))
fillet11.Radius = 2
doc.recompute()

fillet12 = doc.addObject("PartDesign::Fillet", "Fillet011")
body.addObject(fillet12)
fillet12.Base = (fillet11, edges_at(fillet11, [(102, 195, 26.5)]))
fillet12.Radius = 2
doc.recompute()

fillet13 = doc.addObject("PartDesign::Fillet", "Fillet012")
body.addObject(fillet13)
fillet13.Base = (fillet12, edges_at(fillet12, [(33, 195, 26.5), (69, 195, 26.5)]))
fillet13.Radius = 2
doc.recompute()

fillet14 = doc.addObject("PartDesign::Fillet", "Fillet013")
body.addObject(fillet14)
fillet14.Base = (fillet13, edges_at(fillet13, [(51, 161, 0)]))
fillet14.Radius = 2

doc.recompute()
